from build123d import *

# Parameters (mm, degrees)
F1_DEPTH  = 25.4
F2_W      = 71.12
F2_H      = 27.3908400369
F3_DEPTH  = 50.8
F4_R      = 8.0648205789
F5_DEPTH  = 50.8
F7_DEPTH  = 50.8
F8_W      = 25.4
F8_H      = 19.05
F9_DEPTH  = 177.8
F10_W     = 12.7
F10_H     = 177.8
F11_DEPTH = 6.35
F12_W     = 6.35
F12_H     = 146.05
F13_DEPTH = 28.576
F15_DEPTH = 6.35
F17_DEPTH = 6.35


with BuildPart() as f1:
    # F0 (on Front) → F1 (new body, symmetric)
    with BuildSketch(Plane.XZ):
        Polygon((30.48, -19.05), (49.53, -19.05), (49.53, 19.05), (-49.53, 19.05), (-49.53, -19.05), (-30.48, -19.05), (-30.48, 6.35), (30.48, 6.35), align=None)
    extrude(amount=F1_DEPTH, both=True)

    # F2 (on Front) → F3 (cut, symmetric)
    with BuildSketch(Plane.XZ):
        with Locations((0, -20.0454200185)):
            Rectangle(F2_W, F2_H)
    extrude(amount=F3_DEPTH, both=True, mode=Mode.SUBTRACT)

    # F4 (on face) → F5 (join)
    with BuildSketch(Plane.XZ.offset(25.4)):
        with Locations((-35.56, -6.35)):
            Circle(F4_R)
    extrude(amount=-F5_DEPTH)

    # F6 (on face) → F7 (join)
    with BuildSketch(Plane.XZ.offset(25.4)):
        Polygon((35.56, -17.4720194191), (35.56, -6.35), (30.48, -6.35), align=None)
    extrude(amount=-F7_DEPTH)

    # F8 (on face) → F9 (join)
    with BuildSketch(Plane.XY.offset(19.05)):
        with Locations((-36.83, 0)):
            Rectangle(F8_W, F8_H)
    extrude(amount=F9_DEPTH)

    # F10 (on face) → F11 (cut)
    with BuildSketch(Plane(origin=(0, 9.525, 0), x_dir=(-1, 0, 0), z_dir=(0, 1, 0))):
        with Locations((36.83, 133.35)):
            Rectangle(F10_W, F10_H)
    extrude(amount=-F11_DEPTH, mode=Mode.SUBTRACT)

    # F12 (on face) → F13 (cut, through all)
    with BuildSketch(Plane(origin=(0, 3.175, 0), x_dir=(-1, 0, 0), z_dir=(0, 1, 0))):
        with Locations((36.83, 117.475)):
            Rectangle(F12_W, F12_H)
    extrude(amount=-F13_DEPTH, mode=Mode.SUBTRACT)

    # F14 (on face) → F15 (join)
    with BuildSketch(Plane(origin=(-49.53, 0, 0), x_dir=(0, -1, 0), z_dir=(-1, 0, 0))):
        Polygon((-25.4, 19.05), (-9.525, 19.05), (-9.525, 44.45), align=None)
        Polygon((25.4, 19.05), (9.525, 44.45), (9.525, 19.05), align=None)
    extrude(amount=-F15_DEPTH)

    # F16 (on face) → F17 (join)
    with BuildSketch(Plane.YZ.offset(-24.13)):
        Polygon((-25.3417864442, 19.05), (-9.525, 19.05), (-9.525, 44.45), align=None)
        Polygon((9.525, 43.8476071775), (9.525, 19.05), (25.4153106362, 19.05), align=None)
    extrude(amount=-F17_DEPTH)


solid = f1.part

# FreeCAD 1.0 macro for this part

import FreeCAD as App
import Part
import Sketcher
from FreeCAD import Vector
Q = App.Units.Quantity

doc = App.newDocument("Part")
body = doc.addObject("PartDesign::Body", "Body")

# Sketch on XZ plane
sketch1 = doc.addObject("Sketcher::SketchObject", "Sketch")
body.addObject(sketch1)
sketch1.AttachmentSupport = (doc.XZ_Plane, [""])
sketch1.MapMode = "FlatFace"
sketch1.addGeometry([
    Part.LineSegment(Vector(30.48, -19.05, 0), Vector(49.53, -19.05, 0)),  # 0
    Part.LineSegment(Vector(49.53, -19.05, 0), Vector(49.53, 19.05, 0)),  # 1
    Part.LineSegment(Vector(49.53, 19.05, 0), Vector(-49.53, 19.05, 0)),  # 2
    Part.LineSegment(Vector(-49.53, 19.05, 0), Vector(-49.53, -19.05, 0)),  # 3
    Part.LineSegment(Vector(-49.53, -19.05, 0), Vector(-30.48, -19.05, 0)),  # 4
    Part.LineSegment(Vector(-30.48, -19.05, 0), Vector(-30.48, 6.35, 0)),  # 5
    Part.LineSegment(Vector(-30.48, 6.35, 0), Vector(30.48, 6.35, 0)),  # 6
    Part.LineSegment(Vector(30.48, 6.35, 0), Vector(30.48, -19.05, 0)),  # 7
], False)
sketch1.addConstraint([
    Sketcher.Constraint("Coincident", 0, 2, 1, 1),
    Sketcher.Constraint("Coincident", 1, 2, 2, 1),
    Sketcher.Constraint("Coincident", 2, 2, 3, 1),
    Sketcher.Constraint("Coincident", 3, 2, 4, 1),
    Sketcher.Constraint("Coincident", 4, 2, 5, 1),
    Sketcher.Constraint("Coincident", 5, 2, 6, 1),
    Sketcher.Constraint("Coincident", 6, 2, 7, 1),
    Sketcher.Constraint("Coincident", 7, 2, 0, 1),
    Sketcher.Constraint("Horizontal", 0),
    Sketcher.Constraint("Vertical", 1),
    Sketcher.Constraint("Horizontal", 2),
    Sketcher.Constraint("Vertical", 3),
    Sketcher.Constraint("Horizontal", 4),
    Sketcher.Constraint("Vertical", 5),
    Sketcher.Constraint("Horizontal", 6),
    Sketcher.Constraint("Vertical", 7),
    Sketcher.Constraint("Symmetric", 0, 2, 2, 2, -1, 1),
    Sketcher.Constraint("Symmetric", 4, 2, 7, 2, -2),
    Sketcher.Constraint("DistanceY", 5, 1, 5, 2, Q("1 in")),
    Sketcher.Constraint("DistanceX", 2, 2, 2, 1, Q("3.9 in")),
    Sketcher.Constraint("DistanceX", 6, 1, 6, 2, Q("2.4 in")),
    Sketcher.Constraint("DistanceY", 1, 1, 1, 2, Q("1.5 in")),
])
pad1 = doc.addObject("PartDesign::Pad", "Pad")
body.addObject(pad1)
pad1.Profile = sketch1
pad1.Length = Q("2 in")
pad1.Midplane = True

# Sketch on XZ plane
sketch2 = doc.addObject("Sketcher::SketchObject", "Sketch001")
body.addObject(sketch2)
sketch2.AttachmentSupport = (doc.XZ_Plane, [""])
sketch2.MapMode = "FlatFace"
sketch2.addGeometry([
    Part.LineSegment(Vector(-35.56, -6.35, 0), Vector(-35.56, -33.74084, 0)),
    Part.LineSegment(Vector(-35.56, -33.74084, 0), Vector(35.56, -33.74084, 0)),
    Part.LineSegment(Vector(35.56, -33.74084, 0), Vector(35.56, -6.35, 0)),
    Part.LineSegment(Vector(35.56, -6.35, 0), Vector(-35.56, -6.35, 0)),
], False)
sketch2.addConstraint([
    Sketcher.Constraint("Coincident", 0, 2, 1, 1),
    Sketcher.Constraint("Coincident", 1, 2, 2, 1),
    Sketcher.Constraint("Coincident", 2, 2, 3, 1),
    Sketcher.Constraint("Coincident", 3, 2, 0, 1),
    Sketcher.Constraint("Vertical", 0),
    Sketcher.Constraint("Horizontal", 1),
    Sketcher.Constraint("Vertical", 2),
    Sketcher.Constraint("Horizontal", 3),
    Sketcher.Constraint("DistanceX", 1, 1, 1, 2, Q("2.8 in")),
    Sketcher.Constraint("DistanceX", 0, 2, -1, 1, Q("1.4 in")),
    Sketcher.Constraint("DistanceY", 2, 2, -1, 1, Q("0.25 in")),
    Sketcher.Constraint("DistanceY", 0, 2, 0, 1, 27.39084),
])
pocket1 = doc.addObject("PartDesign::Pocket", "Pocket")
body.addObject(pocket1)
pocket1.Profile = sketch2
pocket1.Length = Q("4 in")
pocket1.Midplane = True

# Sketch on XZ plane
sketch3 = doc.addObject("Sketcher::SketchObject", "Sketch002")
body.addObject(sketch3)
sketch3.AttachmentSupport = (doc.XZ_Plane, [""])
sketch3.MapMode = "FlatFace"
sketch3.AttachmentOffset = App.Placement(Vector(0, 0, 1 * 25.4), App.Rotation())
sketch3.addGeometry(Part.Circle(Vector(-35.56, -6.35, 0), Vector(0, 0, 1), 8.064821), False)
sketch3.addConstraint([
    Sketcher.Constraint("DistanceX", 0, 3, -1, 1, Q("1.4 in")),
    Sketcher.Constraint("DistanceY", 0, 3, -1, 1, Q("0.25 in")),
    Sketcher.Constraint("Diameter", 0, 16.129641),
])
pad2 = doc.addObject("PartDesign::Pad", "Pad001")
body.addObject(pad2)
pad2.Profile = sketch3
pad2.Length = Q("2 in")
pad2.Reversed = True

# Sketch on XZ plane
sketch4 = doc.addObject("Sketcher::SketchObject", "Sketch003")
body.addObject(sketch4)
sketch4.AttachmentSupport = (doc.XZ_Plane, [""])
sketch4.MapMode = "FlatFace"
sketch4.AttachmentOffset = App.Placement(Vector(0, 0, 1 * 25.4), App.Rotation())
sketch4.addGeometry([
    Part.LineSegment(Vector(35.56, -17.472019, 0), Vector(35.56, -6.35, 0)),
    Part.LineSegment(Vector(35.56, -6.35, 0), Vector(30.48, -6.35, 0)),
    Part.LineSegment(Vector(30.48, -6.35, 0), Vector(35.56, -17.472019, 0)),
], False)
sketch4.addConstraint([
    Sketcher.Constraint("Coincident", 0, 2, 1, 1),
    Sketcher.Constraint("Coincident", 1, 2, 2, 1),
    Sketcher.Constraint("Coincident", 2, 2, 0, 1),
    Sketcher.Constraint("Vertical", 0),
    Sketcher.Constraint("Horizontal", 1),
    Sketcher.Constraint("DistanceX", 1, 2, 1, 1, Q("0.2 in")),
    Sketcher.Constraint("DistanceX", -1, 1, 0, 2, Q("1.4 in")),
    Sketcher.Constraint("DistanceY", 0, 2, -1, 1, Q("0.25 in")),
    Sketcher.Constraint("DistanceY", 0, 1, 0, 2, 11.122019),
])
pad3 = doc.addObject("PartDesign::Pad", "Pad002")
body.addObject(pad3)
pad3.Profile = sketch4
pad3.Length = Q("2 in")
pad3.Reversed = True

# Sketch on XY plane
sketch5 = doc.addObject("Sketcher::SketchObject", "Sketch004")
body.addObject(sketch5)
sketch5.AttachmentSupport = (doc.XY_Plane, [""])
sketch5.MapMode = "FlatFace"
sketch5.AttachmentOffset = App.Placement(Vector(0, 0, 0.75 * 25.4), App.Rotation())
sketch5.addGeometry([
    Part.LineSegment(Vector(-49.53, 9.525, 0), Vector(-49.53, -9.525, 0)),
    Part.LineSegment(Vector(-49.53, -9.525, 0), Vector(-24.13, -9.525, 0)),
    Part.LineSegment(Vector(-24.13, -9.525, 0), Vector(-24.13, 9.525, 0)),
    Part.LineSegment(Vector(-24.13, 9.525, 0), Vector(-49.53, 9.525, 0)),
], False)
sketch5.addConstraint([
    Sketcher.Constraint("Coincident", 0, 2, 1, 1),
    Sketcher.Constraint("Coincident", 1, 2, 2, 1),
    Sketcher.Constraint("Coincident", 2, 2, 3, 1),
    Sketcher.Constraint("Coincident", 3, 2, 0, 1),
    Sketcher.Constraint("Vertical", 0),
    Sketcher.Constraint("Horizontal", 1),
    Sketcher.Constraint("Vertical", 2),
    Sketcher.Constraint("Horizontal", 3),
    Sketcher.Constraint("DistanceX", 1, 1, 1, 2, Q("1 in")),
    Sketcher.Constraint("DistanceY", 0, 2, 0, 1, Q("0.75 in")),
    Sketcher.Constraint("DistanceX", 0, 2, -1, 1, Q("1.95 in")),
    Sketcher.Constraint("DistanceY", 0, 2, -1, 1, Q("0.375 in")),
])
pad4 = doc.addObject("PartDesign::Pad", "Pad003")
body.addObject(pad4)
pad4.Profile = sketch5
pad4.Length = Q("7 in")

# Sketch on XZ plane
sketch6 = doc.addObject("Sketcher::SketchObject", "Sketch005")
body.addObject(sketch6)
sketch6.AttachmentSupport = (doc.XZ_Plane, [""])
sketch6.MapMode = "FlatFace"
sketch6.AttachmentOffset = App.Placement(Vector(0, 0, -0.375 * 25.4), App.Rotation())
sketch6.addGeometry([
    Part.LineSegment(Vector(-30.48, 222.25, 0), Vector(-30.48, 44.45, 0)),
    Part.LineSegment(Vector(-30.48, 44.45, 0), Vector(-43.18, 44.45, 0)),
    Part.LineSegment(Vector(-43.18, 44.45, 0), Vector(-43.18, 222.25, 0)),
    Part.LineSegment(Vector(-43.18, 222.25, 0), Vector(-30.48, 222.25, 0)),
], False)
sketch6.addConstraint([
    Sketcher.Constraint("Coincident", 0, 2, 1, 1),
    Sketcher.Constraint("Coincident", 1, 2, 2, 1),
    Sketcher.Constraint("Coincident", 2, 2, 3, 1),
    Sketcher.Constraint("Coincident", 3, 2, 0, 1),
    Sketcher.Constraint("Vertical", 0),
    Sketcher.Constraint("Horizontal", 1),
    Sketcher.Constraint("Vertical", 2),
    Sketcher.Constraint("Horizontal", 3),
    Sketcher.Constraint("DistanceY", 0, 2, 0, 1, Q("7 in")),
    Sketcher.Constraint("DistanceX", 1, 2, 1, 1, Q("0.5 in")),
    Sketcher.Constraint("DistanceX", 0, 2, -1, 1, Q("1.2 in")),
    Sketcher.Constraint("DistanceY", -1, 1, 0, 2, Q("1.75 in")),
])
pocket2 = doc.addObject("PartDesign::Pocket", "Pocket001")
body.addObject(pocket2)
pocket2.Profile = sketch6
pocket2.Length = Q("0.25 in")
pocket2.Reversed = True

# Sketch on XZ plane
sketch7 = doc.addObject("Sketcher::SketchObject", "Sketch006")
body.addObject(sketch7)
sketch7.AttachmentSupport = (doc.XZ_Plane, [""])
sketch7.MapMode = "FlatFace"
sketch7.AttachmentOffset = App.Placement(Vector(0, 0, -0.125 * 25.4), App.Rotation())
sketch7.addGeometry([
    Part.LineSegment(Vector(-33.655, 190.5, 0), Vector(-33.655, 44.45, 0)),
    Part.LineSegment(Vector(-33.655, 44.45, 0), Vector(-40.005, 44.45, 0)),
    Part.LineSegment(Vector(-40.005, 44.45, 0), Vector(-40.005, 190.5, 0)),
    Part.LineSegment(Vector(-40.005, 190.5, 0), Vector(-33.655, 190.5, 0)),
], False)
sketch7.addConstraint([
    Sketcher.Constraint("Coincident", 0, 2, 1, 1),
    Sketcher.Constraint("Coincident", 1, 2, 2, 1),
    Sketcher.Constraint("Coincident", 2, 2, 3, 1),
    Sketcher.Constraint("Coincident", 3, 2, 0, 1),
    Sketcher.Constraint("Vertical", 0),
    Sketcher.Constraint("Horizontal", 1),
    Sketcher.Constraint("Vertical", 2),
    Sketcher.Constraint("Horizontal", 3),
    Sketcher.Constraint("DistanceX", 1, 2, 1, 1, Q("0.25 in")),
    Sketcher.Constraint("DistanceY", 0, 2, 0, 1, Q("5.75 in")),
    Sketcher.Constraint("DistanceY", -1, 1, 2, 2, Q("7.5 in")),
    Sketcher.Constraint("DistanceX", 0, 2, -1, 1, Q("1.325 in")),
])
pocket3 = doc.addObject("PartDesign::Pocket", "Pocket002")
body.addObject(pocket3)
pocket3.Profile = sketch7
pocket3.Type = "ThroughAll"
pocket3.Reversed = True

# Sketch on YZ plane
sketch8 = doc.addObject("Sketcher::SketchObject", "Sketch007")
body.addObject(sketch8)
sketch8.AttachmentSupport = (doc.YZ_Plane, [""])
sketch8.MapMode = "FlatFace"
sketch8.AttachmentOffset = App.Placement(Vector(0, 0, -1.95 * 25.4), App.Rotation())
sketch8.addGeometry([
    Part.LineSegment(Vector(25.4, 19.05, 0), Vector(9.525, 19.05, 0)),  # 0
    Part.LineSegment(Vector(9.525, 19.05, 0), Vector(9.525, 44.45, 0)),  # 1
    Part.LineSegment(Vector(9.525, 44.45, 0), Vector(25.4, 19.05, 0)),  # 2
    Part.LineSegment(Vector(-25.4, 19.05, 0), Vector(-9.525, 44.45, 0)),  # 3
    Part.LineSegment(Vector(-9.525, 44.45, 0), Vector(-9.525, 19.05, 0)),  # 4
    Part.LineSegment(Vector(-9.525, 19.05, 0), Vector(-25.4, 19.05, 0)),  # 5
], False)
sketch8.addConstraint([
    Sketcher.Constraint("Coincident", 0, 2, 1, 1),
    Sketcher.Constraint("Coincident", 1, 2, 2, 1),
    Sketcher.Constraint("Coincident", 2, 2, 0, 1),
    Sketcher.Constraint("Coincident", 3, 2, 4, 1),
    Sketcher.Constraint("Coincident", 4, 2, 5, 1),
    Sketcher.Constraint("Coincident", 5, 2, 3, 1),
    Sketcher.Constraint("Horizontal", 0),
    Sketcher.Constraint("Vertical", 1),
    Sketcher.Constraint("Vertical", 4),
    Sketcher.Constraint("Horizontal", 5),
    Sketcher.Constraint("Symmetric", 1, 2, 3, 2, -2),
    Sketcher.Constraint("Symmetric", 2, 2, 5, 2, -2),
    Sketcher.Constraint("DistanceY", 1, 1, 1, 2, Q("1 in")),
    Sketcher.Constraint("DistanceX", -1, 1, 2, 2, Q("1 in")),
    Sketcher.Constraint("DistanceX", 0, 2, 0, 1, Q("0.625 in")),
    Sketcher.Constraint("DistanceY", -1, 1, 0, 2, Q("0.75 in")),
])
pad5 = doc.addObject("PartDesign::Pad", "Pad004")
body.addObject(pad5)
pad5.Profile = sketch8
pad5.Length = Q("0.25 in")

# Sketch on YZ plane
sketch9 = doc.addObject("Sketcher::SketchObject", "Sketch008")
body.addObject(sketch9)
sketch9.AttachmentSupport = (doc.YZ_Plane, [""])
sketch9.MapMode = "FlatFace"
sketch9.AttachmentOffset = App.Placement(Vector(0, 0, -0.95 * 25.4), App.Rotation())
sketch9.addGeometry([
    Part.LineSegment(Vector(-25.341786, 19.05, 0), Vector(-9.525, 19.05, 0)),  # 0
    Part.LineSegment(Vector(-9.525, 19.05, 0), Vector(-9.525, 44.45, 0)),  # 1
    Part.LineSegment(Vector(-9.525, 44.45, 0), Vector(-25.341786, 19.05, 0)),  # 2
    Part.LineSegment(Vector(9.525, 43.847607, 0), Vector(9.525, 19.05, 0)),  # 3
    Part.LineSegment(Vector(9.525, 19.05, 0), Vector(25.415311, 19.05, 0)),  # 4
    Part.LineSegment(Vector(25.415311, 19.05, 0), Vector(9.525, 43.847607, 0)),  # 5
], False)
sketch9.addConstraint([
    Sketcher.Constraint("Coincident", 0, 2, 1, 1),
    Sketcher.Constraint("Coincident", 1, 2, 2, 1),
    Sketcher.Constraint("Coincident", 2, 2, 0, 1),
    Sketcher.Constraint("Coincident", 3, 2, 4, 1),
    Sketcher.Constraint("Coincident", 4, 2, 5, 1),
    Sketcher.Constraint("Coincident", 5, 2, 3, 1),
    Sketcher.Constraint("Horizontal", 0),
    Sketcher.Constraint("Vertical", 1),
    Sketcher.Constraint("Vertical", 3),
    Sketcher.Constraint("Horizontal", 4),
    Sketcher.Constraint("Symmetric", 0, 2, 3, 2, -2),
    Sketcher.Constraint("DistanceY", 1, 1, 1, 2, Q("1 in")),
    Sketcher.Constraint("DistanceY", -1, 1, 0, 2, Q("0.75 in")),
    Sketcher.Constraint("DistanceX", 0, 2, 3, 2, Q("0.75 in")),
    Sketcher.Constraint("DistanceX", 4, 1, 4, 2, 15.890311),
    Sketcher.Constraint("Distance", 5, 29.452051),
    Sketcher.Constraint("DistanceX", 0, 1, 0, 2, 15.816786),
])
pad6 = doc.addObject("PartDesign::Pad", "Pad005")
body.addObject(pad6)
pad6.Profile = sketch9
pad6.Length = Q("0.25 in")
pad6.Reversed = True

doc.recompute()
